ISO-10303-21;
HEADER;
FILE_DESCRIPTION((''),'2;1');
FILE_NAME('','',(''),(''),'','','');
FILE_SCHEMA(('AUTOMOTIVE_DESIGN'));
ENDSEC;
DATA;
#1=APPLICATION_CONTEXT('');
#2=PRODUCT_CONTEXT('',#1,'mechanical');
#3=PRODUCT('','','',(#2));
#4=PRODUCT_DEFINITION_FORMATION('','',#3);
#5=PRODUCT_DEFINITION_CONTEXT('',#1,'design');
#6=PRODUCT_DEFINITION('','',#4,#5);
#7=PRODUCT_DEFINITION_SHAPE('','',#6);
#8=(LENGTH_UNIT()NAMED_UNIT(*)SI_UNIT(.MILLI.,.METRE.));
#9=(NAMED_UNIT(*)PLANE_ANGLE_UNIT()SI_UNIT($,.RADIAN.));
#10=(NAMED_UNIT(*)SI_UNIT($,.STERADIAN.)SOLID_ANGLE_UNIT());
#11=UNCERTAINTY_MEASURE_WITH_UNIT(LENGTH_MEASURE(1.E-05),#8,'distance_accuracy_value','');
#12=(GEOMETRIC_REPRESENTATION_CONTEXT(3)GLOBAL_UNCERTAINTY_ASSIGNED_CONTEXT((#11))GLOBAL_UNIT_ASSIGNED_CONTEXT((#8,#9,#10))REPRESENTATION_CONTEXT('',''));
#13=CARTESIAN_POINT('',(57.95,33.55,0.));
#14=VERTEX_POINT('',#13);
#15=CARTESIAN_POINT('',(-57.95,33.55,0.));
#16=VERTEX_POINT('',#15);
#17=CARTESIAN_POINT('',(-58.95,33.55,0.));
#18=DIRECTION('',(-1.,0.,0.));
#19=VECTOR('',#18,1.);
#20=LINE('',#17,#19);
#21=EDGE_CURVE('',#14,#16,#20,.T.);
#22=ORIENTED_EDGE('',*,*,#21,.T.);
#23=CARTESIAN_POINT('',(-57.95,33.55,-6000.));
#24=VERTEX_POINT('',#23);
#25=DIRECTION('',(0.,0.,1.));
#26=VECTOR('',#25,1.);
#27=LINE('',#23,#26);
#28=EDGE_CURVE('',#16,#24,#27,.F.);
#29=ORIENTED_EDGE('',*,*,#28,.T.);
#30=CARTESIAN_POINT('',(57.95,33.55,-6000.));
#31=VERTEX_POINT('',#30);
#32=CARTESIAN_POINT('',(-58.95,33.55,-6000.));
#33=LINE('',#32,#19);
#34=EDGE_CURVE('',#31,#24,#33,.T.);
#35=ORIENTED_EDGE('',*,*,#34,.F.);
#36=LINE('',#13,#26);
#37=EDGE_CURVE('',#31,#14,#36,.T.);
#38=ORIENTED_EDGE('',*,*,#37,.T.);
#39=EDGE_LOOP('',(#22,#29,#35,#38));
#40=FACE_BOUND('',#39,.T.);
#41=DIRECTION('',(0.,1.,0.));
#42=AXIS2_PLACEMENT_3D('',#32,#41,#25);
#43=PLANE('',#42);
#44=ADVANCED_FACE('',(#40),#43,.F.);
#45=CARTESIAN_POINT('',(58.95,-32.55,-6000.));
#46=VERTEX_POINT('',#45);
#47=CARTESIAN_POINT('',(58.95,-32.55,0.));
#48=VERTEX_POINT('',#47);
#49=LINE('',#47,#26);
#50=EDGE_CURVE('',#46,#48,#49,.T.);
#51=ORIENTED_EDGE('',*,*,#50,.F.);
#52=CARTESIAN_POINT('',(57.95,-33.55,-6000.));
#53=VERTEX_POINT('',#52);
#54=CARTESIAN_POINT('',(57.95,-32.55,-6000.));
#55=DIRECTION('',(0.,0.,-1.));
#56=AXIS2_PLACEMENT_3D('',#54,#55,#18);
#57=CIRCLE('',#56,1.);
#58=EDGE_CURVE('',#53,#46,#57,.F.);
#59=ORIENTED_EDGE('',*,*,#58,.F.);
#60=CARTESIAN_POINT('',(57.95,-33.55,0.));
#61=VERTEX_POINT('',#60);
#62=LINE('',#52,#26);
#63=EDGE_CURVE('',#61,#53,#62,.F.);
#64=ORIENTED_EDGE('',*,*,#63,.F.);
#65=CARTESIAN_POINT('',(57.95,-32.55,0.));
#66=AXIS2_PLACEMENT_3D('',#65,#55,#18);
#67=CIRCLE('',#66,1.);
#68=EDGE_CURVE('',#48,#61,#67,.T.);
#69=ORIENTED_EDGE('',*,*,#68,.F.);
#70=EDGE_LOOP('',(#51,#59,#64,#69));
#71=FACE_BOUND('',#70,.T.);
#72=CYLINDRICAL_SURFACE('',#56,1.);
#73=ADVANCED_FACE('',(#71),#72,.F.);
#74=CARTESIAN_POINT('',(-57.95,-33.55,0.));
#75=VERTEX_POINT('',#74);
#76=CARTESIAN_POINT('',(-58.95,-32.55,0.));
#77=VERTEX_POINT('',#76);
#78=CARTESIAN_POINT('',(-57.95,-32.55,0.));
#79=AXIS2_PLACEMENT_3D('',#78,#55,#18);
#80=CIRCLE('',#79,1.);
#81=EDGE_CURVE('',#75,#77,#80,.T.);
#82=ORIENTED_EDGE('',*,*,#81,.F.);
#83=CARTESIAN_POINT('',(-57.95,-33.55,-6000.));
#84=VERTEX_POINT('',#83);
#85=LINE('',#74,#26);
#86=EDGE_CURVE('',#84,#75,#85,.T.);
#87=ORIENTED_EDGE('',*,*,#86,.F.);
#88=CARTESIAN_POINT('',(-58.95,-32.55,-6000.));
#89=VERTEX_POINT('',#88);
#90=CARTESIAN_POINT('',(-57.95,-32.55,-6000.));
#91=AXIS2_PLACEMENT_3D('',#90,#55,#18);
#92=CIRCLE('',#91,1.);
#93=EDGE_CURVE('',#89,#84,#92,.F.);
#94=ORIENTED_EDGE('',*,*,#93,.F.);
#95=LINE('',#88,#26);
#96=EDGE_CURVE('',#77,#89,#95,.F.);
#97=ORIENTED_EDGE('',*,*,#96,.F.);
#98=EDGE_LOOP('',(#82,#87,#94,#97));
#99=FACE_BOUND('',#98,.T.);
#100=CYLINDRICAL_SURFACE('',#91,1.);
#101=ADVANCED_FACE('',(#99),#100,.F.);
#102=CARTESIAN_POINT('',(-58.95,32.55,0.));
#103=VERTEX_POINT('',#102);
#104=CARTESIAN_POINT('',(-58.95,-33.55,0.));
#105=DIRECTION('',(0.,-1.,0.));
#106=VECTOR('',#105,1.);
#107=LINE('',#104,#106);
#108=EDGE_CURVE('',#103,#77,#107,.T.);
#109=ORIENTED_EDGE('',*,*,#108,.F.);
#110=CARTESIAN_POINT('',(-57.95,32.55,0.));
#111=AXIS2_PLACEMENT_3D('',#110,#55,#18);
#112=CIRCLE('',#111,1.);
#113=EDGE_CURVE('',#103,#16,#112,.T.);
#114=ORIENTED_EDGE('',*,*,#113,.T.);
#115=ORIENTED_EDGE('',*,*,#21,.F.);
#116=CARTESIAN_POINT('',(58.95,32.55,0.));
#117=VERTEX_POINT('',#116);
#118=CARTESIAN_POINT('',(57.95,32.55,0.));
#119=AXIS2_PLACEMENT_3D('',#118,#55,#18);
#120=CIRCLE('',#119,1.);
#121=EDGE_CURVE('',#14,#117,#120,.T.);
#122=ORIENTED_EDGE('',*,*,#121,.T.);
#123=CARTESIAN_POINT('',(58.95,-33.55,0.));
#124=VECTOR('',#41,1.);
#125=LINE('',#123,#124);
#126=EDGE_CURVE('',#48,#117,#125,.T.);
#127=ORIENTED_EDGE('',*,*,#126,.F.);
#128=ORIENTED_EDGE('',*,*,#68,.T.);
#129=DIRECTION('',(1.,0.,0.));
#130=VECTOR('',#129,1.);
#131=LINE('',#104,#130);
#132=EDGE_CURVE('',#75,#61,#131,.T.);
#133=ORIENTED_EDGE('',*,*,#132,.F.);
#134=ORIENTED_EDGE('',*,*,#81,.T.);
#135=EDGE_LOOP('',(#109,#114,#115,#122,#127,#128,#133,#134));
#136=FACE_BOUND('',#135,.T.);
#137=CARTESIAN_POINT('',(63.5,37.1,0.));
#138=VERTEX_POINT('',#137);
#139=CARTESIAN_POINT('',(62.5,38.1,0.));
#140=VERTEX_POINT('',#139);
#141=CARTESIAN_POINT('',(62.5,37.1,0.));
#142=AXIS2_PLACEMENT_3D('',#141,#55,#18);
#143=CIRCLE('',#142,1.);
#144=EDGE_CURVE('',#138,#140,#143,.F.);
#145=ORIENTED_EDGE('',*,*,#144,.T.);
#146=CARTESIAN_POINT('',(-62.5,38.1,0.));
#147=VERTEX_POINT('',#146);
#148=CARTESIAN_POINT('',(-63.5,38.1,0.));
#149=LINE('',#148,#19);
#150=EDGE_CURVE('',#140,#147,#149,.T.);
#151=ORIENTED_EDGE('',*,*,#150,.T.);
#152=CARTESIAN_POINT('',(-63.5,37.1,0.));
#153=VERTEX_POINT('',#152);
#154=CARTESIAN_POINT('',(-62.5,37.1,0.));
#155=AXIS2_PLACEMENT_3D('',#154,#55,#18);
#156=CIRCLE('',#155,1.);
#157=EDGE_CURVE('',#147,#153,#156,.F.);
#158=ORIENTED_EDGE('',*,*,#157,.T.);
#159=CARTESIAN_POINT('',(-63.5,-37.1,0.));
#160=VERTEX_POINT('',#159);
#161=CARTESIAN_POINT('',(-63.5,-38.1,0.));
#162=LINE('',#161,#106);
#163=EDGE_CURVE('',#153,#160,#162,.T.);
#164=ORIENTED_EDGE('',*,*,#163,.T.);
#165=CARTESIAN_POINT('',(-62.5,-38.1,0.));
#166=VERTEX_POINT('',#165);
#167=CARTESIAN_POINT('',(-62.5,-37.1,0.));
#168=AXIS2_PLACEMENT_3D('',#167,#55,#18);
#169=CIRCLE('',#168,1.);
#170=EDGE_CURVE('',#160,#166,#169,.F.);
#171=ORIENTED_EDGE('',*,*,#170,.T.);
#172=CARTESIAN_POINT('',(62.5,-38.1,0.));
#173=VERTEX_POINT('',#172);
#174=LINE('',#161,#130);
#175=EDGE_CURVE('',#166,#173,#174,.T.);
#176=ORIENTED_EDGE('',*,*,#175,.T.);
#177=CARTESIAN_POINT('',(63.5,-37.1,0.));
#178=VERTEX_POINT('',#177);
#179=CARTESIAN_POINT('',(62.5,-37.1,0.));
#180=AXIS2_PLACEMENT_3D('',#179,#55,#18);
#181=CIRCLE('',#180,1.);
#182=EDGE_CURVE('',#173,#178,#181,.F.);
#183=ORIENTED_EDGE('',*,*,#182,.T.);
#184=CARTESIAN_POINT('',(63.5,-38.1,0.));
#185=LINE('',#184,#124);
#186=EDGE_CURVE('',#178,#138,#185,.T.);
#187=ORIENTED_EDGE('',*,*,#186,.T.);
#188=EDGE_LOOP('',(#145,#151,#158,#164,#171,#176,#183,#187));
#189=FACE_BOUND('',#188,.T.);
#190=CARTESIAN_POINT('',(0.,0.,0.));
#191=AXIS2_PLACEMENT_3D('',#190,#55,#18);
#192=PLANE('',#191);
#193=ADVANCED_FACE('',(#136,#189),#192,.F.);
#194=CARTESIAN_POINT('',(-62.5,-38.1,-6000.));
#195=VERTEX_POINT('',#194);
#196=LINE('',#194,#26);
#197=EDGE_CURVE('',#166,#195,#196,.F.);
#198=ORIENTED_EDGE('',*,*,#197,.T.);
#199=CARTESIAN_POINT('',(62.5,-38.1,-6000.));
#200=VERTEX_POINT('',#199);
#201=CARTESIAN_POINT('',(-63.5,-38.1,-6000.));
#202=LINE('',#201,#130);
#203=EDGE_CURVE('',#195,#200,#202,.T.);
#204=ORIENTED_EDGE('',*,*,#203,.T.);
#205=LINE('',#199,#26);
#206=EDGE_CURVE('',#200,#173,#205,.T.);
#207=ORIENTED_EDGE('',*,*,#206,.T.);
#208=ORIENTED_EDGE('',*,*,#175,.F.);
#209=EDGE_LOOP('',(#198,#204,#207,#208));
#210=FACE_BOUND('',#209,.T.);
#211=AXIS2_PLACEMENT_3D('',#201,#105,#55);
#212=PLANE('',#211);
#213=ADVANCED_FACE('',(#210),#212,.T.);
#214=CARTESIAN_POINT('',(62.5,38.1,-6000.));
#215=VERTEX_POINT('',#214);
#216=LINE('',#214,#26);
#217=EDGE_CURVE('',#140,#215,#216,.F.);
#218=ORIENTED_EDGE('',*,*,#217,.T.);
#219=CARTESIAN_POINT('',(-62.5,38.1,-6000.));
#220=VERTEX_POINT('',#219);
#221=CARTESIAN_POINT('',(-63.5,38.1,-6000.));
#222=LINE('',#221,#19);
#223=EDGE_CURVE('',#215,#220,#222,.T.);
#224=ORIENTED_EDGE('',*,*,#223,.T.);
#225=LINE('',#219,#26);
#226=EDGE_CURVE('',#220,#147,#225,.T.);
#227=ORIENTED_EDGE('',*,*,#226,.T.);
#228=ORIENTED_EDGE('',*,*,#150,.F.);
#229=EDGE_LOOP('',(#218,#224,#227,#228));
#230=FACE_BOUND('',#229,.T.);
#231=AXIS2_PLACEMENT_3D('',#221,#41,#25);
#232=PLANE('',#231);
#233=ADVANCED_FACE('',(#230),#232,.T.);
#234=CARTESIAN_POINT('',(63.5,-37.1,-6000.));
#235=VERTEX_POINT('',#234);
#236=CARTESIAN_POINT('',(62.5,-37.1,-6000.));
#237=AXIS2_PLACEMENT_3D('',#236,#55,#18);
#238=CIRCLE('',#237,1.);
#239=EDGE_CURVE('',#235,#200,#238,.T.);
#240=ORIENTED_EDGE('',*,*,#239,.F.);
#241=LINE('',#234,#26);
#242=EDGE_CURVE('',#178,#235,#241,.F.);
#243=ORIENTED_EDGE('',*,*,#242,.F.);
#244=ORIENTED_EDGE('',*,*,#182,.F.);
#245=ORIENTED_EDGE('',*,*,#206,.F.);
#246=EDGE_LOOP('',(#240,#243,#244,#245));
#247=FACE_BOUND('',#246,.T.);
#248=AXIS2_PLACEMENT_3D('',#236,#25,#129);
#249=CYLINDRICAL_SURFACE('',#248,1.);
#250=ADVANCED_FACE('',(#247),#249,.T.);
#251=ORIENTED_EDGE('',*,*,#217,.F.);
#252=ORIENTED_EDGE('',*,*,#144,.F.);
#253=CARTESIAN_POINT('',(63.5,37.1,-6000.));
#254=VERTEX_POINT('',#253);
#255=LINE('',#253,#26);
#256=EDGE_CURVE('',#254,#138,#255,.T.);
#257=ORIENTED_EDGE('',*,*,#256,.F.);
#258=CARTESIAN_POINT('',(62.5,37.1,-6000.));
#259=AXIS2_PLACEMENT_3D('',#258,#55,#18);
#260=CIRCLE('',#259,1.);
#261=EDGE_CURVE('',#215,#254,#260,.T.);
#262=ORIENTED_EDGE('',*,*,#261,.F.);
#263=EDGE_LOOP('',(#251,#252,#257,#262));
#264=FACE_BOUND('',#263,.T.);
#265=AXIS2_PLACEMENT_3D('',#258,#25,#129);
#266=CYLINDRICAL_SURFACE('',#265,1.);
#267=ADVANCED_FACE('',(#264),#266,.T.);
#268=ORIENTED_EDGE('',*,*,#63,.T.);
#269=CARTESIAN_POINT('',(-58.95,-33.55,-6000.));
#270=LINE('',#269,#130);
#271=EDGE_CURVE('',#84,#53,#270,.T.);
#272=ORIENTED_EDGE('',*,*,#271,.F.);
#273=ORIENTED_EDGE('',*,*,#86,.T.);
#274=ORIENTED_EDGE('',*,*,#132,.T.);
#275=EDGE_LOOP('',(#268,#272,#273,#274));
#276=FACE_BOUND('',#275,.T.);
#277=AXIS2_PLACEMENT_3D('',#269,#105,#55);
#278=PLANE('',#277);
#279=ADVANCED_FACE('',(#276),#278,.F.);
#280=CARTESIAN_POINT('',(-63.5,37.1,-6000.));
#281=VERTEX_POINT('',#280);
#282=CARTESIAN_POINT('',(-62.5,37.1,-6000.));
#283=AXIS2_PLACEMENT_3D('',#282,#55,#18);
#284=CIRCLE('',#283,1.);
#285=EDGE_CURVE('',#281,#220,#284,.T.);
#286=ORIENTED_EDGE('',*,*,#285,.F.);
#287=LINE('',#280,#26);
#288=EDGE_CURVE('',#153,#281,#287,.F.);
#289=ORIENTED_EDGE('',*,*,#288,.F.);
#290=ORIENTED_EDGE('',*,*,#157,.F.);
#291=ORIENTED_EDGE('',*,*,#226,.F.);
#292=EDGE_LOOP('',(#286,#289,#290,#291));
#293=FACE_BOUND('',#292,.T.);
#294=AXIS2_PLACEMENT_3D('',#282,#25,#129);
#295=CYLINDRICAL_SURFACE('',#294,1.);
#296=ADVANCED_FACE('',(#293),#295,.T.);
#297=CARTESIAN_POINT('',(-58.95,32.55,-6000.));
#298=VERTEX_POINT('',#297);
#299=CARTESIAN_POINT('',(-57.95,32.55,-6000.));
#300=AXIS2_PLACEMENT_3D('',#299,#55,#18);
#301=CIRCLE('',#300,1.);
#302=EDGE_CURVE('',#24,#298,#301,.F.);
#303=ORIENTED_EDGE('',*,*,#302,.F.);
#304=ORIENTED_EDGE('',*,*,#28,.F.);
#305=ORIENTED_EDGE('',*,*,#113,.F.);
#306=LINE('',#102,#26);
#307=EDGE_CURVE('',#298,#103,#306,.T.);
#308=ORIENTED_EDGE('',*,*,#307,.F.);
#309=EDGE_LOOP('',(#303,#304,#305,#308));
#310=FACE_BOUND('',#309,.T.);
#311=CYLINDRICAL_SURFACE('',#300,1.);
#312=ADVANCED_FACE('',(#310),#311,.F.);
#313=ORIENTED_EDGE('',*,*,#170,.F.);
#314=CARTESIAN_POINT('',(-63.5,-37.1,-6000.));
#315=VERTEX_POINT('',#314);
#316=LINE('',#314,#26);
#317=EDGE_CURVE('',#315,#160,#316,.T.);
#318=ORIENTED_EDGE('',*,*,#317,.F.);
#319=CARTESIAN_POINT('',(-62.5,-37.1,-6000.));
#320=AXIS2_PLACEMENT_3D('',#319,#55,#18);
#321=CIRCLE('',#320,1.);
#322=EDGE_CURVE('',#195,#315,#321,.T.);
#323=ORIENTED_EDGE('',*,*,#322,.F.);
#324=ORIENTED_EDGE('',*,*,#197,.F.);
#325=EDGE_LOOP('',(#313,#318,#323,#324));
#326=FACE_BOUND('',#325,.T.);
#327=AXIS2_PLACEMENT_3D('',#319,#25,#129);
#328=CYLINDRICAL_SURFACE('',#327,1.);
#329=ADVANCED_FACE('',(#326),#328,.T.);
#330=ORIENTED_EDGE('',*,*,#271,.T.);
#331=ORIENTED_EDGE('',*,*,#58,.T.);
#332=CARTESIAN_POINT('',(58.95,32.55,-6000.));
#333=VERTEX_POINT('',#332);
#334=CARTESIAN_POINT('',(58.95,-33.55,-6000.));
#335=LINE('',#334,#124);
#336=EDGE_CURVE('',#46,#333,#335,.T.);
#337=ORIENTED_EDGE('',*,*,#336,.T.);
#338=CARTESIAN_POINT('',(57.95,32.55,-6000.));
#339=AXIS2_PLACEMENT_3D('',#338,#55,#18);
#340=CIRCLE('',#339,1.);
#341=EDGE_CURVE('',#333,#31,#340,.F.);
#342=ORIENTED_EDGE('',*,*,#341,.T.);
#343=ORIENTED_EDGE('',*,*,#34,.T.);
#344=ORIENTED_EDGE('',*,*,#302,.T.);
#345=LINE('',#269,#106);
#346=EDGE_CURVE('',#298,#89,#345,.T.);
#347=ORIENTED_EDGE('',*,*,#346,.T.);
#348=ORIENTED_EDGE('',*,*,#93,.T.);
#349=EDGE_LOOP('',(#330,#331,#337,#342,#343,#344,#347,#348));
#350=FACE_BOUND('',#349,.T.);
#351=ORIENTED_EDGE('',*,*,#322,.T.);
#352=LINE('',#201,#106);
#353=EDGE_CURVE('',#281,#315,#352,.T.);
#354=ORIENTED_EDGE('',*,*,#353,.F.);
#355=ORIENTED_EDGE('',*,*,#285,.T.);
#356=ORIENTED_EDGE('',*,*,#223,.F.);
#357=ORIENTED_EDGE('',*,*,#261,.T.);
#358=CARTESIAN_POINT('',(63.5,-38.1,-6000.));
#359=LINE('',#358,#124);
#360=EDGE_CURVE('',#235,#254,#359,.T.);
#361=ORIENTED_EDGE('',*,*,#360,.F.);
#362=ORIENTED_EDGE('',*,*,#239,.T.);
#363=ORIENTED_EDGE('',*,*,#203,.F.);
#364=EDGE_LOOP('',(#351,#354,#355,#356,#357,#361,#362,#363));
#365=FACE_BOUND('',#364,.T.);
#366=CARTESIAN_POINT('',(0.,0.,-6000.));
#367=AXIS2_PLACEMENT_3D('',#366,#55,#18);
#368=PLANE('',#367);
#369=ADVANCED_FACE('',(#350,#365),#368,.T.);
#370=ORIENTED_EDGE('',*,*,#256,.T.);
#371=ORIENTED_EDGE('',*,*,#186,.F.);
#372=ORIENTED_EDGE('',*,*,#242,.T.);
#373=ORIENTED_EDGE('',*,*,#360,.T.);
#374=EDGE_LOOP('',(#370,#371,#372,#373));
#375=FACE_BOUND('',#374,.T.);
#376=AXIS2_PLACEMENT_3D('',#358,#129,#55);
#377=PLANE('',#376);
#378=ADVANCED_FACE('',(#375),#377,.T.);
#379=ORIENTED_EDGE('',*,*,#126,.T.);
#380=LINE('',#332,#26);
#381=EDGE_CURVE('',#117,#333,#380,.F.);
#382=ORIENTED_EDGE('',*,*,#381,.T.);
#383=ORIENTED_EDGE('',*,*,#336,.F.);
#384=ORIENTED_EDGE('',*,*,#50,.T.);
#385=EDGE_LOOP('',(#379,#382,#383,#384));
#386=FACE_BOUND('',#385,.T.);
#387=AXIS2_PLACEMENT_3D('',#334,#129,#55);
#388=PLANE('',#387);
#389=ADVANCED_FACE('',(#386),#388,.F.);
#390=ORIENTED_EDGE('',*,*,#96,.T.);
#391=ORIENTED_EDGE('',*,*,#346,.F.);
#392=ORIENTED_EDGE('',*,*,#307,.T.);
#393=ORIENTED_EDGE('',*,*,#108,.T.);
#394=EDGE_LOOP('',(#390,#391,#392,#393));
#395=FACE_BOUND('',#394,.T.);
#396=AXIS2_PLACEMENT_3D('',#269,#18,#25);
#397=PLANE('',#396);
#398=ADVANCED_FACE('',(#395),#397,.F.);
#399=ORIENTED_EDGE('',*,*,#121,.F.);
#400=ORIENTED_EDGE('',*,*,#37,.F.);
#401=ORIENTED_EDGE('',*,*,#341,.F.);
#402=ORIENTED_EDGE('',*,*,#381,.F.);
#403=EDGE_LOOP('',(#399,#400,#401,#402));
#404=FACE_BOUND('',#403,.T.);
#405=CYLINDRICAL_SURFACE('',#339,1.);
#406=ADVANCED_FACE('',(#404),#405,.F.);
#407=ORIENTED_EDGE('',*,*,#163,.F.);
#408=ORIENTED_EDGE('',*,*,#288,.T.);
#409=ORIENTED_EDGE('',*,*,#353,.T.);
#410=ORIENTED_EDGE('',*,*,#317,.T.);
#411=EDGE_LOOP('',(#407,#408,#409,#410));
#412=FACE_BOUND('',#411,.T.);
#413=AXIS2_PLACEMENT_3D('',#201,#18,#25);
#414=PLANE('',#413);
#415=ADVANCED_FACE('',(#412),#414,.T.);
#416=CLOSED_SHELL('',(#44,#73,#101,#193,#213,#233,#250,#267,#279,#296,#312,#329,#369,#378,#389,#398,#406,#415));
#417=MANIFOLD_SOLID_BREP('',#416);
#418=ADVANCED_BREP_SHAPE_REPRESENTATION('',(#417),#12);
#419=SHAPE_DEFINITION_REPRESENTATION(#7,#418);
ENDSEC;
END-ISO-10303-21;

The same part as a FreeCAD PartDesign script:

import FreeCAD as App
import Part
import Sketcher

V = App.Vector
Q = App.Units.Quantity


def edges_at(feature, points):
    """Names of the edges that pass closest to the given points."""
    edges = feature.Shape.Edges
    near = lambda p: min(range(len(edges)), key=lambda i: edges[i].distToShape(Part.Vertex(*p))[0])
    return sorted({f"Edge{near(p) + 1}" for p in points})


def add_polygon(sketch, points):
    """Adds a closed chain of lines whose ends are joined by coincident constraints."""
    first, n = sketch.GeometryCount, len(points)
    for a, b in zip(points, points[1:] + points[:1]):
        sketch.addGeometry(Part.LineSegment(App.Vector(*a, 0), App.Vector(*b, 0)), False)
    for i in range(n):
        sketch.addConstraint(Sketcher.Constraint("Coincident", first + i, 2, first + (i + 1) % n, 1))

doc = App.newDocument("Part")
body = doc.addObject("PartDesign::Body", "Body")

sketch1 = body.newObject("Sketcher::SketchObject", "Sketch")
sketch1.AttachmentSupport = (doc.getObject("XY_Plane"), [""])
sketch1.MapMode = "FlatFace"
add_polygon(sketch1, [(-64, 38), (-64, -38), (64, -38), (64, 38)])
add_polygon(sketch1, [(59, -34), (-59, -34), (-59, 34), (59, 34)])
sketch1.addConstraint([
    Sketcher.Constraint("Vertical", 0),
    Sketcher.Constraint("Horizontal", 1),
    Sketcher.Constraint("Vertical", 2),
    Sketcher.Constraint("Horizontal", 3),
    Sketcher.Constraint("Horizontal", 4),
    Sketcher.Constraint("Vertical", 5),
    Sketcher.Constraint("Horizontal", 6),
    Sketcher.Constraint("Vertical", 7),
    Sketcher.Constraint("Symmetric", 0, 2, 2, 2, -1, 1),
    Sketcher.Constraint("Symmetric", 4, 2, 6, 2, -1, 1),
    Sketcher.Constraint("DistanceX", 1, 1, 1, 2, Q("127 mm")),
    Sketcher.Constraint("DistanceX", 4, 2, 4, 1, Q("117.9 mm")),
    Sketcher.Constraint("DistanceY", 0, 2, 0, 1, Q("76.2 mm")),
    Sketcher.Constraint("DistanceY", 5, 1, 5, 2, Q("67.1 mm")),
])
pad1 = body.newObject("PartDesign::Pad", "Pad")
pad1.Profile = sketch1
pad1.Length = 6000
pad1.Reversed = True
doc.recompute()

fillet = body.newObject("PartDesign::Fillet", "Fillet")
fillet.Base = (pad1, edges_at(pad1, [
    (58.95, -33.55, -3000),
    (-58.95, -33.55, -3000),
    (-58.95, 33.55, -3000),
    (58.95, 33.55, -3000),
    (63.5, -38.1, -3000),
    (-63.5, -38.1, -3000),
    (-63.5, 38.1, -3000),
    (63.5, 38.1, -3000),
]))
fillet.Radius = 1

doc.recompute()
